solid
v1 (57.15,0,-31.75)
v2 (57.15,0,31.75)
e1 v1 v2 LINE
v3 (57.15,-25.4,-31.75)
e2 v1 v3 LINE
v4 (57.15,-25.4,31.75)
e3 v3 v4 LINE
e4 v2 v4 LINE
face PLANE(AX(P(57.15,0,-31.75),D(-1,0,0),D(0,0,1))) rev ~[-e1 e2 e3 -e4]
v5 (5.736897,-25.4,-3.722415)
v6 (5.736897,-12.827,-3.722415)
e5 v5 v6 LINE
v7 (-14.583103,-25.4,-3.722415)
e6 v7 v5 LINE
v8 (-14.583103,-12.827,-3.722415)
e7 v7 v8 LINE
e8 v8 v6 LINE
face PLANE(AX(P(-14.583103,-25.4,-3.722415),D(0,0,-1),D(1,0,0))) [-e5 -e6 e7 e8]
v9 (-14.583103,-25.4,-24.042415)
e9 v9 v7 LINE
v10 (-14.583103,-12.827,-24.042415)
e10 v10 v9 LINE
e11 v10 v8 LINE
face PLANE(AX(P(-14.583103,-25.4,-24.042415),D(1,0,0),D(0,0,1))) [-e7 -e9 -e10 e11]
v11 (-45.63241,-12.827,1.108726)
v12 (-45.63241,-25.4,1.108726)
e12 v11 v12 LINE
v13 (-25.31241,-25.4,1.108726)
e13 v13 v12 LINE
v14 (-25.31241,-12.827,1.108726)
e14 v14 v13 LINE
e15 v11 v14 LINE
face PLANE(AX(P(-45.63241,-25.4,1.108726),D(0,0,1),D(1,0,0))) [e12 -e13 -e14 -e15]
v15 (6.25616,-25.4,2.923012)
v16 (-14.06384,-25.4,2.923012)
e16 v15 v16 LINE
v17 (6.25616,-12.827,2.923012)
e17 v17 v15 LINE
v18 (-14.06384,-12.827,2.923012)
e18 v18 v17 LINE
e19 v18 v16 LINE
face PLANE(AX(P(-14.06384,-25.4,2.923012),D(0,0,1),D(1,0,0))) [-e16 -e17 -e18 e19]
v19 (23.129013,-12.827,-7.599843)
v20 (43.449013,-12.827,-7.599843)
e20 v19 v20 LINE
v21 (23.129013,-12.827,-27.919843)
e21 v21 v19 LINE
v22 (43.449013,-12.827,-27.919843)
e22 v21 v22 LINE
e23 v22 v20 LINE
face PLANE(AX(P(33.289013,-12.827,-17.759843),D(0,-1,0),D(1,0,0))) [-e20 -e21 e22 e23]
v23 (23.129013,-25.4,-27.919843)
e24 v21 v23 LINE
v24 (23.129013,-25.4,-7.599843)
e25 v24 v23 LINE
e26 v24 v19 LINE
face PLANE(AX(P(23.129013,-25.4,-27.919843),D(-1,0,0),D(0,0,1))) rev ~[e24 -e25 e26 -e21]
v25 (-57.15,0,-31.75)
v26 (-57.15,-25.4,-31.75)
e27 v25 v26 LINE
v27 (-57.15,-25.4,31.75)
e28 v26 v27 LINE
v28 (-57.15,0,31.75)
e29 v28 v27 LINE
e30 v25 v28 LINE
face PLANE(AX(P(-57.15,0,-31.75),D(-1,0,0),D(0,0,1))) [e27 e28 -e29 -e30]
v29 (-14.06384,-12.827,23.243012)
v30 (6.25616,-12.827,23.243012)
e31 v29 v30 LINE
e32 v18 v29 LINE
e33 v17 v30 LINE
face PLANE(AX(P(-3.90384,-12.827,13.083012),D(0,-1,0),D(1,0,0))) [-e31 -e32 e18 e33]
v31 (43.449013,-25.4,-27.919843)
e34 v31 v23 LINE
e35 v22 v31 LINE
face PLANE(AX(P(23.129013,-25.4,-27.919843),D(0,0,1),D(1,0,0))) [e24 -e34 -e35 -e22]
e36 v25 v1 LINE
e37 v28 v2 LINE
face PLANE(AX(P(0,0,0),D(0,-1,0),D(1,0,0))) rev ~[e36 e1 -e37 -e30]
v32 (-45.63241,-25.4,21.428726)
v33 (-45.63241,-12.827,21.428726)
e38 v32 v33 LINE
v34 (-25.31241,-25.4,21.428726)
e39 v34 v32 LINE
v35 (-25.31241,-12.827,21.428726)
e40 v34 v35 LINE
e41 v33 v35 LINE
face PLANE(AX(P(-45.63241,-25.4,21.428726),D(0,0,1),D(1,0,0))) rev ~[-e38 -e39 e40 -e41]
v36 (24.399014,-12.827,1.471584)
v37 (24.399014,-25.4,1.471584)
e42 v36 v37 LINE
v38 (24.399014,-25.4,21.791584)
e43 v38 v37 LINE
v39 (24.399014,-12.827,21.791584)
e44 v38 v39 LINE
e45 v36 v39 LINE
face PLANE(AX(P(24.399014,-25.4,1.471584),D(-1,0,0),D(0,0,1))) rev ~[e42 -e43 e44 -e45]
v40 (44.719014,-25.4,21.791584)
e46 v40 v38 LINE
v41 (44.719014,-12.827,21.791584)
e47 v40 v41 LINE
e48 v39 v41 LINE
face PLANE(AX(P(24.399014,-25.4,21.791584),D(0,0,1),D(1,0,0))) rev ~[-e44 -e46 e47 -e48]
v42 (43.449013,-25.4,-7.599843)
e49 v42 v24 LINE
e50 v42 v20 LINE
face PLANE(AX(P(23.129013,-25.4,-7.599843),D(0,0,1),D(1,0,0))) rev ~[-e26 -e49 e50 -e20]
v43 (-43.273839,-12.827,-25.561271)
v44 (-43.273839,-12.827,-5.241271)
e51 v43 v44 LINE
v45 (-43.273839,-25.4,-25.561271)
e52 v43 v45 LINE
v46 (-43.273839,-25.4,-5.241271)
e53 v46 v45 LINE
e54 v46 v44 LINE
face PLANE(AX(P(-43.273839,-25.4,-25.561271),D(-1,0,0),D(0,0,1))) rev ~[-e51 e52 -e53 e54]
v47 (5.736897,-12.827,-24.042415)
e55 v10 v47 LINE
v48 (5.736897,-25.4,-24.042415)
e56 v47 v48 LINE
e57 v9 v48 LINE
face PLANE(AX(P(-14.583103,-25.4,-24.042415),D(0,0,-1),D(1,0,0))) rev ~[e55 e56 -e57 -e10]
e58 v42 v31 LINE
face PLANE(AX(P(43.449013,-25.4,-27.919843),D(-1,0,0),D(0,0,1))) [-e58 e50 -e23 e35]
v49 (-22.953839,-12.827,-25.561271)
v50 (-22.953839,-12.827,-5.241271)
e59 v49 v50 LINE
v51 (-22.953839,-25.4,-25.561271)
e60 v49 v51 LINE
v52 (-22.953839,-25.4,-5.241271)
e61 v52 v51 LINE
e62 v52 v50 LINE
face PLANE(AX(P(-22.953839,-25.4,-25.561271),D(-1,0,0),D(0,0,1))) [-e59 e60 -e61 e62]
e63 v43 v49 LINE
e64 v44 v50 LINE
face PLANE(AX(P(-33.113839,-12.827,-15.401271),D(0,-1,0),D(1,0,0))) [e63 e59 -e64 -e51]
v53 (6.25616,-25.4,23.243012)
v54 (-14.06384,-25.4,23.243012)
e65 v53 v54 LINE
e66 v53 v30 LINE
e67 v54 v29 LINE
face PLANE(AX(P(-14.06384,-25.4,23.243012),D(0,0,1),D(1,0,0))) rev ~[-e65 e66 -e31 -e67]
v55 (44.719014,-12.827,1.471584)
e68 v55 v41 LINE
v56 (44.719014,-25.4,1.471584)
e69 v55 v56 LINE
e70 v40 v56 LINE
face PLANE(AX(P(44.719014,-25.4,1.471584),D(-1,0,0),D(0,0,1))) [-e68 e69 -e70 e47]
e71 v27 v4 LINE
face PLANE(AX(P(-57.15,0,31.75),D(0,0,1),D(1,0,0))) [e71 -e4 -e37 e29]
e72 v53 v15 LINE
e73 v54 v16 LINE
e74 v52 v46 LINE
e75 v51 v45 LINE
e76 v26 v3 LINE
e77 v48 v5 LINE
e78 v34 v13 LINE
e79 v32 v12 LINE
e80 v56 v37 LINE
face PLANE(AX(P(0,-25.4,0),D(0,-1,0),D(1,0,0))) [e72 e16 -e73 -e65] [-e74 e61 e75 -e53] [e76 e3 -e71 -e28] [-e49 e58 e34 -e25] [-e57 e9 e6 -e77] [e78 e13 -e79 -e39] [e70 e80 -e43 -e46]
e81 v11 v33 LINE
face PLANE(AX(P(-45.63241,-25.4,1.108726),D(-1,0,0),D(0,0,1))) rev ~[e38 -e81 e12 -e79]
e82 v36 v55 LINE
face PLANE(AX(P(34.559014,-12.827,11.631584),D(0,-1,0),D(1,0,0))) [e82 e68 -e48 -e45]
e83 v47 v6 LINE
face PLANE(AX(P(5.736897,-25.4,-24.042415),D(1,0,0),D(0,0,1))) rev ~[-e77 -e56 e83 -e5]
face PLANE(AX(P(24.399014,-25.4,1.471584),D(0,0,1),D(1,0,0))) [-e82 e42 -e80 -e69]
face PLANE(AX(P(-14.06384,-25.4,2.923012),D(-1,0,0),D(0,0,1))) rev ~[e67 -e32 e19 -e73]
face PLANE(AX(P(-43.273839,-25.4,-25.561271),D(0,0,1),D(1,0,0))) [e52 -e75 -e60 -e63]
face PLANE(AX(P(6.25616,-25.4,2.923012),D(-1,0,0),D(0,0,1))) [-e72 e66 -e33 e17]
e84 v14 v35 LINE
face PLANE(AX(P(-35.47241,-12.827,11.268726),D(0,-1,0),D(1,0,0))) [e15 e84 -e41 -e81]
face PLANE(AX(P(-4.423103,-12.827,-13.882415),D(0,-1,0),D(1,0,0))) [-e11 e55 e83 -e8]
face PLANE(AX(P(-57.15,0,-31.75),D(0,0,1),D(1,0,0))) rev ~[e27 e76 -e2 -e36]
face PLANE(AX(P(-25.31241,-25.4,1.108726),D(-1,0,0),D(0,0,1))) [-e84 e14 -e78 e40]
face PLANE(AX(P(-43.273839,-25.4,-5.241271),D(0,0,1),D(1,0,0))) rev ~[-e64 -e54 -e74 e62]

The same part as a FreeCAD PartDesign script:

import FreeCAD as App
import Part
import Sketcher
Q = App.Units.Quantity


def add_polygon(sketch, points):
    """Adds a closed chain of lines whose ends are joined by coincident constraints."""
    first, n = sketch.GeometryCount, len(points)
    for a, b in zip(points, points[1:] + points[:1]):
        sketch.addGeometry(Part.LineSegment(App.Vector(*a, 0), App.Vector(*b, 0)), False)
    for i in range(n):
        sketch.addConstraint(Sketcher.Constraint("Coincident", first + i, 2, first + (i + 1) % n, 1))

doc = App.newDocument("Part")
body = doc.addObject("PartDesign::Body", "Body")

# Sketch on XZ plane
sketch1 = body.newObject("Sketcher::SketchObject", "Sketch")
sketch1.AttachmentSupport = (doc.getObject("XZ_Plane"), [""])
sketch1.MapMode = "FlatFace"
add_polygon(sketch1, [(-57, 32), (-57, -32), (57, -32), (57, 32)])  # lines 0-3
sketch1.addConstraint([
    Sketcher.Constraint("Vertical", 0),
    Sketcher.Constraint("Horizontal", 1),
    Sketcher.Constraint("Vertical", 2),
    Sketcher.Constraint("Horizontal", 3),
    Sketcher.Constraint("Symmetric", 0, 2, 2, 2, -1, 1),
    Sketcher.Constraint("DistanceX", 1, 1, 1, 2, Q("4.5 in")),
    Sketcher.Constraint("DistanceY", 0, 2, 0, 1, Q("2.5 in")),
])
pad1 = body.newObject("PartDesign::Pad", "Pad")
pad1.Profile = sketch1
pad1.Length = Q("1 in")

# Sketch on XZ plane
sketch2 = body.newObject("Sketcher::SketchObject", "Sketch001")
sketch2.AttachmentSupport = (doc.getObject("XZ_Plane"), [""])
sketch2.MapMode = "FlatFace"
sketch2.AttachmentOffset = App.Placement(App.Vector(0, 0, 1 * 25.4), App.Rotation())
add_polygon(sketch2, [(-46, 21), (-46, 1), (-25, 1), (-25, 21)])  # lines 0-3
add_polygon(sketch2, [(-14, 23), (-14, 3), (6, 3), (6, 23)])  # lines 4-7
add_polygon(sketch2, [(24, 22), (24, 1), (45, 1), (45, 22)])  # lines 8-11
add_polygon(sketch2, [(-43, -5), (-43, -26), (-23, -26), (-23, -5)])  # lines 12-15
add_polygon(sketch2, [(23, -8), (23, -28), (43, -28), (43, -8)])  # lines 16-19
add_polygon(sketch2, [(-15, -4), (-15, -24), (6, -24), (6, -4)])  # lines 20-23
sketch2.addConstraint([
    Sketcher.Constraint("Vertical", 0),
    Sketcher.Constraint("Horizontal", 1),
    Sketcher.Constraint("Vertical", 2),
    Sketcher.Constraint("Horizontal", 3),
    Sketcher.Constraint("Vertical", 4),
    Sketcher.Constraint("Horizontal", 5),
    Sketcher.Constraint("Vertical", 6),
    Sketcher.Constraint("Horizontal", 7),
    Sketcher.Constraint("Vertical", 8),
    Sketcher.Constraint("Horizontal", 9),
    Sketcher.Constraint("Vertical", 10),
    Sketcher.Constraint("Horizontal", 11),
    Sketcher.Constraint("Vertical", 12),
    Sketcher.Constraint("Horizontal", 13),
    Sketcher.Constraint("Vertical", 14),
    Sketcher.Constraint("Horizontal", 15),
    Sketcher.Constraint("Vertical", 16),
    Sketcher.Constraint("Horizontal", 17),
    Sketcher.Constraint("Vertical", 18),
    Sketcher.Constraint("Horizontal", 19),
    Sketcher.Constraint("Vertical", 20),
    Sketcher.Constraint("Horizontal", 21),
    Sketcher.Constraint("Vertical", 22),
    Sketcher.Constraint("Horizontal", 23),
    Sketcher.Constraint("Equal", 3, 5),
    Sketcher.Constraint("Equal", 7, 9),
    Sketcher.Constraint("Equal", 11, 13),
    Sketcher.Constraint("Equal", 15, 17),
    Sketcher.Constraint("Equal", 19, 21),
    Sketcher.Constraint("Equal", 23, 0),
    Sketcher.Constraint("Equal", 2, 4),
    Sketcher.Constraint("Equal", 6, 8),
    Sketcher.Constraint("Equal", 10, 12),
    Sketcher.Constraint("Equal", 14, 16),
    Sketcher.Constraint("Equal", 18, 20),
    Sketcher.Constraint("DistanceX", 1, 1, 1, 2, Q("0.8 in")),
    Sketcher.Constraint("DistanceY", 12, 2, 0, 2, Q("1.0499999 in")),
    Sketcher.Constraint("DistanceX", 12, 2, 4, 2, Q("1.15 in")),
    Sketcher.Constraint("DistanceX", 16, 2, 8, 2, Q("0.05 in")),
    Sketcher.Constraint("DistanceY", 22, 2, 8, 2, 5.193999),
    Sketcher.Constraint("DistanceX", 0, 2, -1, 1, 45.63241),
    Sketcher.Constraint("DistanceX", 4, 2, -1, 1, 14.06384),
    Sketcher.Constraint("DistanceY", -1, 1, 4, 2, 2.923012),
    Sketcher.Constraint("DistanceY", 12, 2, -1, 1, 25.561271),
    Sketcher.Constraint("DistanceY", 8, 2, 6, 2, 21.771428),
    Sketcher.Constraint("DistanceY", 16, 2, 13, 2, 2.358572),
    Sketcher.Constraint("DistanceX", -1, 1, 8, 2, 24.399014),
    Sketcher.Constraint("DistanceX", 20, 2, -1, 1, 14.583103),
])
pocket1 = body.newObject("PartDesign::Pocket", "Pocket")
pocket1.Profile = sketch2
pocket1.Length = Q("0.99 in")
pocket1.Midplane = True

doc.recompute()
